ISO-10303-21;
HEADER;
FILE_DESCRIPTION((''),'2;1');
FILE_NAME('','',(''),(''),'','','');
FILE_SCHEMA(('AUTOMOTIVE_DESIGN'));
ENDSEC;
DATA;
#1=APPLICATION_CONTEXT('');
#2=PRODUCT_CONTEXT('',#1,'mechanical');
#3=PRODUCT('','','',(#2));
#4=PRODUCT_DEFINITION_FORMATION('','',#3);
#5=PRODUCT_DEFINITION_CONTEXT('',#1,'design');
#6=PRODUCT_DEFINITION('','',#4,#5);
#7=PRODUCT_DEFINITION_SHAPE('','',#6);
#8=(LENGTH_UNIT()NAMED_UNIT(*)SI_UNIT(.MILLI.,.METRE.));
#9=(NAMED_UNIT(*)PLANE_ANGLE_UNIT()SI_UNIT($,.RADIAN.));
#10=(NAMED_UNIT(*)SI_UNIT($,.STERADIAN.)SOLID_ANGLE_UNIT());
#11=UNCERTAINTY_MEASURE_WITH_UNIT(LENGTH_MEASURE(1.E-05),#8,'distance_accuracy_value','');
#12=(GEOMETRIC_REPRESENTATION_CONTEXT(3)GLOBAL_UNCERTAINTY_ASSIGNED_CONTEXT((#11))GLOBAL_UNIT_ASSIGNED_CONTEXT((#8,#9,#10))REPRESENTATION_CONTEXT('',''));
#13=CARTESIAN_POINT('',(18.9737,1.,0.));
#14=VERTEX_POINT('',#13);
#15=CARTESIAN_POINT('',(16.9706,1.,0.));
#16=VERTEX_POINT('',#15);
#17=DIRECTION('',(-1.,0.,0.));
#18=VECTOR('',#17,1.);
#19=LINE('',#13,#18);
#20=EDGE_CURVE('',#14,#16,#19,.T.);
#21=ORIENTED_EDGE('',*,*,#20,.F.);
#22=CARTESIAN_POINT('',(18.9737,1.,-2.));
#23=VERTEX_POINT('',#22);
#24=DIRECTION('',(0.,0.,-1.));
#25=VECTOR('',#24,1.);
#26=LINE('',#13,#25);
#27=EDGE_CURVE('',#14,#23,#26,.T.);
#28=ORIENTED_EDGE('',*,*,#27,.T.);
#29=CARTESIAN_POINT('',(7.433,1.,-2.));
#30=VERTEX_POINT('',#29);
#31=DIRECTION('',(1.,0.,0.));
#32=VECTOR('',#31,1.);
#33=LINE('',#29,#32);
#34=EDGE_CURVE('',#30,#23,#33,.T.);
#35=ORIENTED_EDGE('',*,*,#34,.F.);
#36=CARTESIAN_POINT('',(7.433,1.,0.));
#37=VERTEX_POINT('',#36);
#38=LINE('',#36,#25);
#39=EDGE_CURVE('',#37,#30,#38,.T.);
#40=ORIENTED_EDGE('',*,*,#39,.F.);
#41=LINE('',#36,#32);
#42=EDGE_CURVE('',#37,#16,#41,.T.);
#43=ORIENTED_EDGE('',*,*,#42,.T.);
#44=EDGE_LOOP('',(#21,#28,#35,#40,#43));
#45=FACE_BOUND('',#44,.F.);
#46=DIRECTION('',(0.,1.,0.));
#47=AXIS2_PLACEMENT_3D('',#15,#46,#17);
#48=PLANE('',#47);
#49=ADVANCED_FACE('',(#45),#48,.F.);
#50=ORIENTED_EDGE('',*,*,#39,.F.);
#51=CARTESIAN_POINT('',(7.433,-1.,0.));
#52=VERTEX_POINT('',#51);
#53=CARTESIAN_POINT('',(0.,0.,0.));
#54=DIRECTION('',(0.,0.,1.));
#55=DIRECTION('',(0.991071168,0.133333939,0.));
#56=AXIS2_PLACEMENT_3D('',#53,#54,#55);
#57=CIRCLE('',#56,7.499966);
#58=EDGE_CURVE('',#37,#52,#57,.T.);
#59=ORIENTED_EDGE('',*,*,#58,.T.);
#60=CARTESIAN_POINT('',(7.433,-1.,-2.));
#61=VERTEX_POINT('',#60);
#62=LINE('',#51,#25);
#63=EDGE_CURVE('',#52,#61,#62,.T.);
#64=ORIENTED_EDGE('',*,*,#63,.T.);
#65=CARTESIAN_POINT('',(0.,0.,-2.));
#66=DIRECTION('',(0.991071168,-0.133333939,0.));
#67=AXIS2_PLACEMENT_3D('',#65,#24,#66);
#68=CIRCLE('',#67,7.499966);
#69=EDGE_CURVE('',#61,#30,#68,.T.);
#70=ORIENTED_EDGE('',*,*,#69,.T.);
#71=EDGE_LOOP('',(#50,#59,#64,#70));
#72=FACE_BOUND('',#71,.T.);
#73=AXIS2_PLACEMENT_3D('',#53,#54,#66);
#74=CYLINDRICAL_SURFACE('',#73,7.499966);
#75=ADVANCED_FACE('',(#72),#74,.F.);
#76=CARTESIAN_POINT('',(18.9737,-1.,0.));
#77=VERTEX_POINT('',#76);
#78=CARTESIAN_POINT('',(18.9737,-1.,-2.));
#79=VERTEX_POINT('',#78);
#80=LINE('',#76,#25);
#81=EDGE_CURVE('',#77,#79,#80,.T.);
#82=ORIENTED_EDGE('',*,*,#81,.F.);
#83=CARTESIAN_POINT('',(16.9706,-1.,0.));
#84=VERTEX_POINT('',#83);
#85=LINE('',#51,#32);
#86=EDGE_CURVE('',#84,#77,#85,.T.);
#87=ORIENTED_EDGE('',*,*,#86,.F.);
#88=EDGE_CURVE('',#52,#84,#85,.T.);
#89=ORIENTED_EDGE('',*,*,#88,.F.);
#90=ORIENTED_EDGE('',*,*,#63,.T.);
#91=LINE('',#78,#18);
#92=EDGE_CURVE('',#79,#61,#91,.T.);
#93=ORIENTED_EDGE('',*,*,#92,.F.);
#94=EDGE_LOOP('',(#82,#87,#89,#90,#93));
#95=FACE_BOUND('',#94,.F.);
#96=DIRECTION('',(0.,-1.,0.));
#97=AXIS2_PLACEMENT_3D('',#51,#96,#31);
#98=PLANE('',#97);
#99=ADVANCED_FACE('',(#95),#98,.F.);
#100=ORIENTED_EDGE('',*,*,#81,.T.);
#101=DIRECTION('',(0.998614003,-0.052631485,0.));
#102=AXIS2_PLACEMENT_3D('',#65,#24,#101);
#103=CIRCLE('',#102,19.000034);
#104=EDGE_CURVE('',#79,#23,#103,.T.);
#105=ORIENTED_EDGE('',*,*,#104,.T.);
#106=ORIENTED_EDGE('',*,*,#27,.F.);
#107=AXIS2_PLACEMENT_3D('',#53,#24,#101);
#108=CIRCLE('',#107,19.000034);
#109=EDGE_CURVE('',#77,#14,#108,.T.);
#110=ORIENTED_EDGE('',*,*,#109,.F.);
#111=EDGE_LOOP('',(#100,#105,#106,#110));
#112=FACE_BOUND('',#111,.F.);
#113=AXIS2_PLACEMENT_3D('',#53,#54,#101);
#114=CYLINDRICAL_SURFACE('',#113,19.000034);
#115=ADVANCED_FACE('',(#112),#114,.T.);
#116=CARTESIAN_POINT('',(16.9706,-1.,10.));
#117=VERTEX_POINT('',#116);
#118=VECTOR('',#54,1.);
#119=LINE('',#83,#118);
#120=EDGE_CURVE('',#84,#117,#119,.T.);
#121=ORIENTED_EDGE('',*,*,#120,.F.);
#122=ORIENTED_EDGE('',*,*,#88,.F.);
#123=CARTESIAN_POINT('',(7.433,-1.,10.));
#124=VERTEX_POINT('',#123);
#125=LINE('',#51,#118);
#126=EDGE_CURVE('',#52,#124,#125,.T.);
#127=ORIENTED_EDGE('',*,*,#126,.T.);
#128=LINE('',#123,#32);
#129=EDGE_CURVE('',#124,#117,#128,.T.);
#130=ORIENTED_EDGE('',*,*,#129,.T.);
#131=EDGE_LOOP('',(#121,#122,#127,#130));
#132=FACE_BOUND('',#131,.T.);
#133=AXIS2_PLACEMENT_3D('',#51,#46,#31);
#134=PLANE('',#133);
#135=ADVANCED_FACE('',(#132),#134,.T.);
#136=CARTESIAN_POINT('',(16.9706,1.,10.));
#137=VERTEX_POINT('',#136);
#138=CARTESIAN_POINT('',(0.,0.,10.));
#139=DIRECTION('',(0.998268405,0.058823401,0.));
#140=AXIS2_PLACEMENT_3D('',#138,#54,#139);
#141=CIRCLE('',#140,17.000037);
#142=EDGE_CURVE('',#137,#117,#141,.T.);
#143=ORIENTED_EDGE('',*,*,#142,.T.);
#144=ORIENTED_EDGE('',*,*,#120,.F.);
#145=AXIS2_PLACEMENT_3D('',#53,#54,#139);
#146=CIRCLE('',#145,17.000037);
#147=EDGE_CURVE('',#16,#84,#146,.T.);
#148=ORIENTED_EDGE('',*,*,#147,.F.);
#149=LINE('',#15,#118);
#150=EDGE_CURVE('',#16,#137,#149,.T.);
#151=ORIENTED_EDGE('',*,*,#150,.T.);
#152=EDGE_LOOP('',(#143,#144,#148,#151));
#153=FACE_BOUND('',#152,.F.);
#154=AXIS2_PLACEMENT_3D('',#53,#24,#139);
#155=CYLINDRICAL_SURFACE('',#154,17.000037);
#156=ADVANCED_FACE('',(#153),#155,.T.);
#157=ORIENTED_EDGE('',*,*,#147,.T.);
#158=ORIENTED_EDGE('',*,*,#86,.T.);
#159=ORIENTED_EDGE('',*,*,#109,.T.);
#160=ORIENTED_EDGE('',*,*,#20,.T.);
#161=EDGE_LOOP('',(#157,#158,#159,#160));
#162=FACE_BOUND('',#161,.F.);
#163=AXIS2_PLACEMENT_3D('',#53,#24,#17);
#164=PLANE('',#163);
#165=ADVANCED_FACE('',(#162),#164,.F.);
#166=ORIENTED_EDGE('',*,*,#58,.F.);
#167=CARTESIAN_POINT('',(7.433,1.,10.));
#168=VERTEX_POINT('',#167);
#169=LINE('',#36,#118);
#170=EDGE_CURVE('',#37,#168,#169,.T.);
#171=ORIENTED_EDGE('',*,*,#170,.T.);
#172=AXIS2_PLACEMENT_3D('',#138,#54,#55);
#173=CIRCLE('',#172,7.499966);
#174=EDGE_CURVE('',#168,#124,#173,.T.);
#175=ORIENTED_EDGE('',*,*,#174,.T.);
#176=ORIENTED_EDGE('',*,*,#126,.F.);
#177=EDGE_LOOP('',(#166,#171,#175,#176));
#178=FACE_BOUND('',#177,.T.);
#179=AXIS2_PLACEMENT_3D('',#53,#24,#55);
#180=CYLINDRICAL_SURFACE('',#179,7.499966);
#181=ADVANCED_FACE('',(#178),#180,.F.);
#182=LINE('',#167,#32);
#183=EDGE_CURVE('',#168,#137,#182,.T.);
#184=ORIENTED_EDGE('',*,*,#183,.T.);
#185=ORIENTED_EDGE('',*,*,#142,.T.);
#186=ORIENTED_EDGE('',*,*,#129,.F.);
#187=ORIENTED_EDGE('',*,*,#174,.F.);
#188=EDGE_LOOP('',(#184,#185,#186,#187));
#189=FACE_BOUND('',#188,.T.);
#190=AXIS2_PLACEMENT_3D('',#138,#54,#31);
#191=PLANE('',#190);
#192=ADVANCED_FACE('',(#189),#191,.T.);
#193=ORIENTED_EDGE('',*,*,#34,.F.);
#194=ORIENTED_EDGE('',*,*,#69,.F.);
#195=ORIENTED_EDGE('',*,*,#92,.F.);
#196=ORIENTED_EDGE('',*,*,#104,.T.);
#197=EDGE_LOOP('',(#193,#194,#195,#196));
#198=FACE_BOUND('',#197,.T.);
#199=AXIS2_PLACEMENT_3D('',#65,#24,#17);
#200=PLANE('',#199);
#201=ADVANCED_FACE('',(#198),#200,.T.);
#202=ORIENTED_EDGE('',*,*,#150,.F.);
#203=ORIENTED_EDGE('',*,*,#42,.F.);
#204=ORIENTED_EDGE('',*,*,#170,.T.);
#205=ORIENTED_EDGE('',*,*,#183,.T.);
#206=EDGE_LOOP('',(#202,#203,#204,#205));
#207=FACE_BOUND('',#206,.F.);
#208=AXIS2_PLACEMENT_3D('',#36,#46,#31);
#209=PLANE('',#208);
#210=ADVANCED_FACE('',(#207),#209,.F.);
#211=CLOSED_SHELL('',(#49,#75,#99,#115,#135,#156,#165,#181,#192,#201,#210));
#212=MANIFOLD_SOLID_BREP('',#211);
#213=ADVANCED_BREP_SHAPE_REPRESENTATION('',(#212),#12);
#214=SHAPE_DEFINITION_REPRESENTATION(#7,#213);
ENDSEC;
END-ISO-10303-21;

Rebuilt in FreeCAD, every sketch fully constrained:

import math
import FreeCAD as App
import Part
import Sketcher
from FreeCAD import Vector

doc = App.newDocument("Part")
body = doc.addObject("PartDesign::Body", "Body")

# Sketch on XY plane
sketch1 = body.newObject("Sketcher::SketchObject", "Sketch")
sketch1.AttachmentSupport = (doc.getObject("XY_Plane"), [""])
sketch1.MapMode = "FlatFace"
sketch1.addGeometry(Part.ArcOfCircle(Part.Circle(Vector(0, 0, 0), Vector(0, 0, 1), 7.5), math.radians(8), math.radians(352)), False)
sketch1.addGeometry(Part.LineSegment(Vector(7.4, 1, 0), Vector(17, 1, 0)), False)
sketch1.addGeometry(Part.ArcOfCircle(Part.Circle(Vector(0, 0, 0), Vector(0, 0, 1), 17), math.radians(3), math.radians(357)), False)
sketch1.addGeometry(Part.LineSegment(Vector(17, -1, 0), Vector(7.4, -1, 0)), False)
sketch1.addConstraint(Sketcher.Constraint("Coincident", 0, 1, 1, 1))
sketch1.addConstraint(Sketcher.Constraint("Coincident", 1, 2, 2, 1))
sketch1.addConstraint(Sketcher.Constraint("Coincident", 2, 2, 3, 1))
sketch1.addConstraint(Sketcher.Constraint("Coincident", 3, 2, 0, 2))
sketch1.addConstraint(Sketcher.Constraint("Horizontal", 1))
sketch1.addConstraint(Sketcher.Constraint("Horizontal", 3))
sketch1.addConstraint(Sketcher.Constraint("Coincident", 0, 3, -1, 1))
sketch1.addConstraint(Sketcher.Constraint("Coincident", 2, 3, -1, 1))
sketch1.addConstraint(Sketcher.Constraint("Vertical", 1, 2, 2, 2))
sketch1.addConstraint(Sketcher.Constraint("Radius", 2, 17.0))
sketch1.addConstraint(Sketcher.Constraint("Radius", 0, 7.5))
sketch1.addConstraint(Sketcher.Constraint("DistanceY", 2, 2, 1, 2, 2.0))
pad1 = body.newObject("PartDesign::Pad", "Pad")
pad1.Profile = sketch1
pad1.Length = 10

# Sketch on XY plane
sketch2 = body.newObject("Sketcher::SketchObject", "Sketch001")
sketch2.AttachmentSupport = (doc.getObject("XY_Plane"), [""])
sketch2.MapMode = "FlatFace"
sketch2.addGeometry(Part.ArcOfCircle(Part.Circle(Vector(0, 0, 0), Vector(0, 0, 1), 7.5), math.radians(8), math.radians(352)), False)
sketch2.addGeometry(Part.LineSegment(Vector(7.4, -1, 0), Vector(19, -1, 0)), False)
sketch2.addGeometry(Part.ArcOfCircle(Part.Circle(Vector(0, 0, 0), Vector(0, 0, 1), 19), math.radians(3), math.radians(357)), False)
sketch2.addGeometry(Part.LineSegment(Vector(19, 1, 0), Vector(7.4, 1, 0)), False)
sketch2.addConstraint(Sketcher.Constraint("Coincident", 0, 2, 1, 1))
sketch2.addConstraint(Sketcher.Constraint("Coincident", 1, 2, 2, 2))
sketch2.addConstraint(Sketcher.Constraint("Coincident", 2, 1, 3, 1))
sketch2.addConstraint(Sketcher.Constraint("Coincident", 3, 2, 0, 1))
sketch2.addConstraint(Sketcher.Constraint("Horizontal", 1))
sketch2.addConstraint(Sketcher.Constraint("Horizontal", 3))
sketch2.addConstraint(Sketcher.Constraint("Coincident", 0, 3, -1, 1))
sketch2.addConstraint(Sketcher.Constraint("Coincident", 2, 3, -1, 1))
sketch2.addConstraint(Sketcher.Constraint("Vertical", 1, 2, 2, 1))
sketch2.addConstraint(Sketcher.Constraint("Radius", 2, 19.0))
sketch2.addConstraint(Sketcher.Constraint("DistanceY", 1, 2, 2, 1, 2.0))
sketch2.addConstraint(Sketcher.Constraint("Radius", 0, 7.5))
pad2 = body.newObject("PartDesign::Pad", "Pad001")
pad2.Profile = sketch2
pad2.Length = 2
pad2.Reversed = True

doc.recompute()
